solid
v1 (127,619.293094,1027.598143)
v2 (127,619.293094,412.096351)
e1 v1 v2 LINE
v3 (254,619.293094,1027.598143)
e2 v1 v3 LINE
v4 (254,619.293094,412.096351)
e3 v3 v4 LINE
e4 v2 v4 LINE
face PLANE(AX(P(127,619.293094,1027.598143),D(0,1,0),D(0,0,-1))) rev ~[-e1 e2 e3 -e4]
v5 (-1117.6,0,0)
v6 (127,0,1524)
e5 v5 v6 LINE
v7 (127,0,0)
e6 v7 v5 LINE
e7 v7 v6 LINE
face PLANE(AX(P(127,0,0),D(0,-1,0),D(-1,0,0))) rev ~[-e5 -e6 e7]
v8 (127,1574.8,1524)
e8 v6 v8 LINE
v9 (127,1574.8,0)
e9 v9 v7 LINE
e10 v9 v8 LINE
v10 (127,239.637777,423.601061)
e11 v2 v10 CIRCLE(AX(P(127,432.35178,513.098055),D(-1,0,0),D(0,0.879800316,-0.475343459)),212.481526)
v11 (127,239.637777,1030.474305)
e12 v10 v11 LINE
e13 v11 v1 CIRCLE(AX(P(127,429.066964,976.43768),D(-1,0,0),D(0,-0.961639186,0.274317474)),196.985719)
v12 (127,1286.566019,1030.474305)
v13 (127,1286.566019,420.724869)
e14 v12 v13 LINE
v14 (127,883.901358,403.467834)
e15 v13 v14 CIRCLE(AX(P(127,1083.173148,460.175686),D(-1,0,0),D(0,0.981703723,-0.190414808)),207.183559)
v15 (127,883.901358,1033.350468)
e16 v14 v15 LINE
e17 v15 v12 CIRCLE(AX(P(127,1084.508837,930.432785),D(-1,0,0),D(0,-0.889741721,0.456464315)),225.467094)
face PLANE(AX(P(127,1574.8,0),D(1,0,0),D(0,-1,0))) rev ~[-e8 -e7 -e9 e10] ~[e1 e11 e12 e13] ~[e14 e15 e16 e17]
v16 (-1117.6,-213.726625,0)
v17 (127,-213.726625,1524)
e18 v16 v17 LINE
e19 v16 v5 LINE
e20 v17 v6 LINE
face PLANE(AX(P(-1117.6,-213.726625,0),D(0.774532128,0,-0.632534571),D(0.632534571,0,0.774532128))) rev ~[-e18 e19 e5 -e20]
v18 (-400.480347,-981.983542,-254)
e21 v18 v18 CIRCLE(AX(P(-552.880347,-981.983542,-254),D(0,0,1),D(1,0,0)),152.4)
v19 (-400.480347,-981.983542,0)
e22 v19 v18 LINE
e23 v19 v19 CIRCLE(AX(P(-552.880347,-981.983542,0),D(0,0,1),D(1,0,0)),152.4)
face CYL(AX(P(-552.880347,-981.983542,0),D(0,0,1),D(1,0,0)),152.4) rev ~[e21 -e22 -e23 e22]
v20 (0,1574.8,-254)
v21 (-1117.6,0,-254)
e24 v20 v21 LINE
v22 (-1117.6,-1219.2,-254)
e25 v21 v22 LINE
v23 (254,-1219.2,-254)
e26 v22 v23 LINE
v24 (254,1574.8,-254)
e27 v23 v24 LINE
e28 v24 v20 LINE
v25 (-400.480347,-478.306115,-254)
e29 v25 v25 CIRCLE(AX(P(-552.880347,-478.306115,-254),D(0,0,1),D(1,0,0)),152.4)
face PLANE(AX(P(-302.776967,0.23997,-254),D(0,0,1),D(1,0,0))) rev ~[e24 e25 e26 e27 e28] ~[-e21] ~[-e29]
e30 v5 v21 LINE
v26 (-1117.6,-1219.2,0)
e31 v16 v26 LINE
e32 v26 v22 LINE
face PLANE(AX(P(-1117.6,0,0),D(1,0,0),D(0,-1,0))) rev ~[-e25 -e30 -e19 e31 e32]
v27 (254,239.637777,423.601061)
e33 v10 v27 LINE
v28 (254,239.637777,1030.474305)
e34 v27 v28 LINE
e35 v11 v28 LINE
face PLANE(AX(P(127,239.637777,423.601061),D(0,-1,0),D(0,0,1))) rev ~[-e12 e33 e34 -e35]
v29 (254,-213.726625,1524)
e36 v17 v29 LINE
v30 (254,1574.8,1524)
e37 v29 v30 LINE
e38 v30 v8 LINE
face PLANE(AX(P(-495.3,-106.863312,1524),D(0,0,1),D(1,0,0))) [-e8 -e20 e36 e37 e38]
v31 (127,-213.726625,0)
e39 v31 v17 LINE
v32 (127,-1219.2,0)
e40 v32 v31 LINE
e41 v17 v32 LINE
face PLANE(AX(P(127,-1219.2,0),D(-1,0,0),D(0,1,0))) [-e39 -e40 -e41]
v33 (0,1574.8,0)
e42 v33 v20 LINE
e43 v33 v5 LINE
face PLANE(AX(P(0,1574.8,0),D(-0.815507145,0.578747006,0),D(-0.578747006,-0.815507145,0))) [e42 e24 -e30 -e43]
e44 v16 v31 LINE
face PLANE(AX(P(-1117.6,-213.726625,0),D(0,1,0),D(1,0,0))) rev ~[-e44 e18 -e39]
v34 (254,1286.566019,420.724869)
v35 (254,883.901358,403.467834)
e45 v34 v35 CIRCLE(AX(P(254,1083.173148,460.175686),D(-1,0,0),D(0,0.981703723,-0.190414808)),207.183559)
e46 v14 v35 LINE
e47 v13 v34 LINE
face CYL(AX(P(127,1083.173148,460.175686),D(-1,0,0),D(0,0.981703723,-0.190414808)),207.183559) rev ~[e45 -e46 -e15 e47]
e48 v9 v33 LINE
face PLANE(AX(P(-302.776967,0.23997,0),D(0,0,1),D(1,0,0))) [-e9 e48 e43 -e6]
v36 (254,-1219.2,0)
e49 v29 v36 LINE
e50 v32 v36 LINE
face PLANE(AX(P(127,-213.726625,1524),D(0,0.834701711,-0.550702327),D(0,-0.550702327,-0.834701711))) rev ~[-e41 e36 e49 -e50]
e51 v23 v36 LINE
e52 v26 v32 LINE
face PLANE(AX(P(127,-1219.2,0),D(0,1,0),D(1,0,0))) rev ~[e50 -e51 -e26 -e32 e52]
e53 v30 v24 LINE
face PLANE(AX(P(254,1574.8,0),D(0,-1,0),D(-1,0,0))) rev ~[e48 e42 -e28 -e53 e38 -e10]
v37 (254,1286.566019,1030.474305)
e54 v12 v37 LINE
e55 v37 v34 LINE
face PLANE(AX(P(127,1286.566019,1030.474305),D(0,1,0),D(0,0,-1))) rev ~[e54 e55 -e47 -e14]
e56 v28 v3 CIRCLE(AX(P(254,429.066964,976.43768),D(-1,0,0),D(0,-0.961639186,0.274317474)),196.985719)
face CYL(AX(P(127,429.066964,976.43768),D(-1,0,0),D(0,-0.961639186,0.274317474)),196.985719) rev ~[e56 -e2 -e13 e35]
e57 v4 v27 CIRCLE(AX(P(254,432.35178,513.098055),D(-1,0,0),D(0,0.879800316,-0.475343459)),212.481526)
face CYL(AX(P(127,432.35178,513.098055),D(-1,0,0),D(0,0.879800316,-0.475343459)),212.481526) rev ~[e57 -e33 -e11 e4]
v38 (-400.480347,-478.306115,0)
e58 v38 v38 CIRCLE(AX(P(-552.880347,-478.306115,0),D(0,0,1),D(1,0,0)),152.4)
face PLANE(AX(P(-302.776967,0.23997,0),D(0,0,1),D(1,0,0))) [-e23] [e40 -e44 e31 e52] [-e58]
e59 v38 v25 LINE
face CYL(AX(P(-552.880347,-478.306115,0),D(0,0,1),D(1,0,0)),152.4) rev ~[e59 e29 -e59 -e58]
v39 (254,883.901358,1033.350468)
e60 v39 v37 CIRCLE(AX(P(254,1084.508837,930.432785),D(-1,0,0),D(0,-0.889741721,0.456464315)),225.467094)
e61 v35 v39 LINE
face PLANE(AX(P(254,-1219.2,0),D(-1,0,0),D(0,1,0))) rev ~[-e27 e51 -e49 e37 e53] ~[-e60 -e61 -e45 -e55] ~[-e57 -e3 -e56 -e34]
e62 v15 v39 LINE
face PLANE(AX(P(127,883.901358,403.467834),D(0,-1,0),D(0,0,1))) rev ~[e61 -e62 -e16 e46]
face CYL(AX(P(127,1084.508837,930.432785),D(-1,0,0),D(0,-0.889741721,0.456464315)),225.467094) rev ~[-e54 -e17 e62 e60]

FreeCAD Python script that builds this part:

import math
import FreeCAD as App
import Part
import Sketcher
Q = App.Units.Quantity

doc = App.newDocument("Part")
body = doc.addObject("PartDesign::Body", "Body")

# Sketch on XY plane
sketch1 = doc.addObject("Sketcher::SketchObject", "Sketch")
body.addObject(sketch1)
sketch1.AttachmentSupport = (doc.XY_Plane, [""])
sketch1.MapMode = "FlatFace"
sketch1.addGeometry([
    Part.LineSegment(App.Vector(254, -1219.2, 0), App.Vector(254, 1574.8, 0)),  # 0
    Part.LineSegment(App.Vector(254, 1574.8, 0), App.Vector(0, 1574.8, 0)),  # 1
    Part.LineSegment(App.Vector(0, 1574.8, 0), App.Vector(-1117.6, 0, 0)),  # 2
    Part.LineSegment(App.Vector(-1117.6, 0, 0), App.Vector(-1117.6, -1219.2, 0)),  # 3
    Part.LineSegment(App.Vector(-1117.6, -1219.2, 0), App.Vector(254, -1219.2, 0)),  # 4
    Part.Circle(App.Vector(-552.880347, -981.983542, 0), App.Vector(0, 0, 1), 152.4),  # 5
    Part.Circle(App.Vector(-552.880347, -478.306115, 0), App.Vector(0, 0, 1), 152.4),  # 6
], False)
sketch1.addConstraint([
    Sketcher.Constraint("Coincident", 0, 2, 1, 1),
    Sketcher.Constraint("Coincident", 1, 2, 2, 1),
    Sketcher.Constraint("Coincident", 2, 2, 3, 1),
    Sketcher.Constraint("Coincident", 3, 2, 4, 1),
    Sketcher.Constraint("Coincident", 4, 2, 0, 1),
    Sketcher.Constraint("Vertical", 0),
    Sketcher.Constraint("Horizontal", 1),
    Sketcher.Constraint("Vertical", 3),
    Sketcher.Constraint("Horizontal", 4),
    Sketcher.Constraint("Equal", 5, 6),
    Sketcher.Constraint("PointOnObject", 1, 2, -2),
    Sketcher.Constraint("PointOnObject", 2, 2, -1),
    Sketcher.Constraint("Vertical", 5, 3, 6, 3),
    Sketcher.Constraint("Diameter", 5, Q("12 in")),
    Sketcher.Constraint("DistanceX", 1, 2, 1, 1, Q("10 in")),
    Sketcher.Constraint("DistanceX", 4, 1, 4, 2, Q("54 in")),
    Sketcher.Constraint("DistanceY", 0, 1, 0, 2, Q("110 in")),
    Sketcher.Constraint("DistanceY", 3, 2, 3, 1, Q("48 in")),
    Sketcher.Constraint("DistanceX", 5, 3, -1, 1, Q("552.880347 mm")),
    Sketcher.Constraint("DistanceY", 5, 3, -1, 1, Q("981.983542 mm")),
    Sketcher.Constraint("DistanceY", 6, 3, -1, 1, Q("478.306115 mm")),
])
pad1 = doc.addObject("PartDesign::Pad", "Pad")
body.addObject(pad1)
pad1.Profile = sketch1
pad1.Length = Q("10 in")
pad1.Reversed = True

# Sketch on XY plane
sketch2 = doc.addObject("Sketcher::SketchObject", "Sketch001")
body.addObject(sketch2)
sketch2.AttachmentSupport = (doc.XY_Plane, [""])
sketch2.MapMode = "FlatFace"
sketch2.addGeometry([
    Part.LineSegment(App.Vector(127, 0, 0), App.Vector(-1117.6, 0, 0)),  # 0
    Part.LineSegment(App.Vector(-1117.6, 0, 0), App.Vector(-1117.6, -213.726625, 0)),  # 1
    Part.LineSegment(App.Vector(-1117.6, -213.726625, 0), App.Vector(127, -213.726625, 0)),  # 2
    Part.LineSegment(App.Vector(127, -213.726625, 0), App.Vector(127, -1219.2, 0)),  # 3
    Part.LineSegment(App.Vector(127, -1219.2, 0), App.Vector(254, -1219.2, 0)),  # 4
    Part.LineSegment(App.Vector(254, -1219.2, 0), App.Vector(254, 1574.8, 0)),  # 5
    Part.LineSegment(App.Vector(254, 1574.8, 0), App.Vector(127, 1574.8, 0)),  # 6
    Part.LineSegment(App.Vector(127, 1574.8, 0), App.Vector(127, 0, 0)),  # 7
], False)
sketch2.addConstraint([
    Sketcher.Constraint("Coincident", 0, 2, 1, 1),
    Sketcher.Constraint("Coincident", 1, 2, 2, 1),
    Sketcher.Constraint("Coincident", 2, 2, 3, 1),
    Sketcher.Constraint("Coincident", 3, 2, 4, 1),
    Sketcher.Constraint("Coincident", 4, 2, 5, 1),
    Sketcher.Constraint("Coincident", 5, 2, 6, 1),
    Sketcher.Constraint("Coincident", 6, 2, 7, 1),
    Sketcher.Constraint("Coincident", 7, 2, 0, 1),
    Sketcher.Constraint("Horizontal", 0),
    Sketcher.Constraint("Vertical", 1),
    Sketcher.Constraint("Horizontal", 2),
    Sketcher.Constraint("Vertical", 3),
    Sketcher.Constraint("Horizontal", 4),
    Sketcher.Constraint("Vertical", 5),
    Sketcher.Constraint("Horizontal", 6),
    Sketcher.Constraint("Vertical", 7),
    Sketcher.Constraint("PointOnObject", 0, 2, -1),
    Sketcher.Constraint("Vertical", 3, 2, 6, 2),
    Sketcher.Constraint("DistanceX", 0, 2, 0, 1, Q("49 in")),
    Sketcher.Constraint("DistanceX", 4, 1, 4, 2, Q("5 in")),
    Sketcher.Constraint("DistanceY", 5, 1, 5, 2, Q("110 in")),
    Sketcher.Constraint("DistanceY", 7, 2, 7, 1, Q("62 in")),
    Sketcher.Constraint("DistanceX", 0, 2, -1, 1, Q("44 in")),
    Sketcher.Constraint("DistanceY", 1, 2, 1, 1, Q("213.726625 mm")),
])
pad2 = doc.addObject("PartDesign::Pad", "Pad001")
body.addObject(pad2)
pad2.Profile = sketch2
pad2.Length = Q("60 in")

# Sketch on YZ plane
sketch3 = doc.addObject("Sketcher::SketchObject", "Sketch002")
body.addObject(sketch3)
sketch3.AttachmentSupport = (doc.YZ_Plane, [""])
sketch3.MapMode = "FlatFace"
sketch3.AttachmentOffset = App.Placement(App.Vector(0, 0, 5 * 25.4), App.Rotation())
sketch3.addGeometry([
    Part.LineSegment(App.Vector(-1219.2, 1524, 0), App.Vector(-213.726625, 1524, 0)),
    Part.LineSegment(App.Vector(-213.726625, 1524, 0), App.Vector(-1219.2, 0, 0)),
    Part.LineSegment(App.Vector(-1219.2, 0, 0), App.Vector(-1219.2, 1524, 0)),
], False)
sketch3.addConstraint([
    Sketcher.Constraint("Coincident", 0, 2, 1, 1),
    Sketcher.Constraint("Coincident", 1, 2, 2, 1),
    Sketcher.Constraint("Coincident", 2, 2, 0, 1),
    Sketcher.Constraint("Horizontal", 0),
    Sketcher.Constraint("Vertical", 2),
    Sketcher.Constraint("PointOnObject", 1, 2, -1),
    Sketcher.Constraint("DistanceY", 2, 1, 2, 2, Q("60 in")),
    Sketcher.Constraint("DistanceX", 1, 2, -1, 1, Q("48 in")),
    Sketcher.Constraint("DistanceX", 0, 1, 0, 2, Q("1005.473375 mm")),
])
pocket1 = doc.addObject("PartDesign::Pocket", "Pocket")
body.addObject(pocket1)
pocket1.Profile = sketch3
pocket1.Length = Q("10 in")
pocket1.Reversed = True

# Sketch on XZ plane
sketch4 = doc.addObject("Sketcher::SketchObject", "Sketch003")
body.addObject(sketch4)
sketch4.AttachmentSupport = (doc.XZ_Plane, [""])
sketch4.MapMode = "FlatFace"
sketch4.AttachmentOffset = App.Placement(App.Vector(0, 0, 213.726625), App.Rotation())
sketch4.addGeometry([
    Part.LineSegment(App.Vector(-1117.6, 0, 0), App.Vector(127, 1524, 0)),
    Part.LineSegment(App.Vector(127, 1524, 0), App.Vector(-1117.6, 1524, 0)),
    Part.LineSegment(App.Vector(-1117.6, 1524, 0), App.Vector(-1117.6, 0, 0)),
], False)
sketch4.addConstraint([
    Sketcher.Constraint("Coincident", 0, 2, 1, 1),
    Sketcher.Constraint("Coincident", 1, 2, 2, 1),
    Sketcher.Constraint("Coincident", 2, 2, 0, 1),
    Sketcher.Constraint("Horizontal", 1),
    Sketcher.Constraint("Vertical", 2),
    Sketcher.Constraint("PointOnObject", 2, 2, -1),
    Sketcher.Constraint("DistanceX", 1, 2, 1, 1, Q("49 in")),
    Sketcher.Constraint("DistanceY", 2, 2, 2, 1, Q("60 in")),
    Sketcher.Constraint("DistanceX", -1, 1, 0, 2, Q("5 in")),
])
pocket2 = doc.addObject("PartDesign::Pocket", "Pocket001")
body.addObject(pocket2)
pocket2.Profile = sketch4
pocket2.Length = Q("10 in")

# Sketch on YZ plane
sketch5 = doc.addObject("Sketcher::SketchObject", "Sketch004")
body.addObject(sketch5)
sketch5.AttachmentSupport = (doc.YZ_Plane, [""])
sketch5.MapMode = "FlatFace"
sketch5.AttachmentOffset = App.Placement(App.Vector(0, 0, 5 * 25.4), App.Rotation())
sketch5.addGeometry([
    Part.LineSegment(App.Vector(883.901358, 403.467834, 0), App.Vector(883.901358, 1033.350468, 0)),  # 0
    Part.ArcOfCircle(Part.Circle(App.Vector(1084.508837, 930.432785, 0), App.Vector(0, 0, 1), 225.467094), math.radians(26.340697), math.radians(152.84081)),  # 1
    Part.LineSegment(App.Vector(1286.566019, 1030.474305, 0), App.Vector(1286.566019, 420.724869, 0)),  # 2
    Part.ArcOfCircle(Part.Circle(App.Vector(1083.173148, 460.175686, 0), App.Vector(0, 0, 1), 207.183559), math.radians(-164.11495), math.radians(-10.976993)),  # 3
    Part.LineSegment(App.Vector(239.637777, 423.601061, 0), App.Vector(239.637777, 1030.474305, 0)),  # 4
    Part.ArcOfCircle(Part.Circle(App.Vector(429.066964, 976.43768, 0), App.Vector(0, 0, 1), 196.985719), math.radians(15.053247), math.radians(164.078656)),  # 5
    Part.LineSegment(App.Vector(619.293094, 1027.598143, 0), App.Vector(619.293094, 412.096351, 0)),  # 6
    Part.ArcOfCircle(Part.Circle(App.Vector(432.35178, 513.098055, 0), App.Vector(0, 0, 1), 212.481526), math.radians(-155.089695), math.radians(-28.381715)),  # 7
], False)
sketch5.addConstraint([
    Sketcher.Constraint("Coincident", 0, 2, 1, 2),
    Sketcher.Constraint("Coincident", 1, 1, 2, 1),
    Sketcher.Constraint("Coincident", 2, 2, 3, 2),
    Sketcher.Constraint("Coincident", 3, 1, 0, 1),
    Sketcher.Constraint("Coincident", 4, 2, 5, 2),
    Sketcher.Constraint("Coincident", 5, 1, 6, 1),
    Sketcher.Constraint("Coincident", 6, 2, 7, 2),
    Sketcher.Constraint("Coincident", 7, 1, 4, 1),
    Sketcher.Constraint("Vertical", 0),
    Sketcher.Constraint("Vertical", 2),
    Sketcher.Constraint("Vertical", 4),
    Sketcher.Constraint("Vertical", 6),
    Sketcher.Constraint("Horizontal", 1, 1, 4, 2),
    Sketcher.Constraint("Radius", 3, Q("207.183559 mm")),
    Sketcher.Constraint("Radius", 5, Q("196.985719 mm")),
    Sketcher.Constraint("DistanceX", -1, 1, 5, 3, Q("16.8924001 in")),
    Sketcher.Constraint("Radius", 1, Q("225.467094 mm")),
    Sketcher.Constraint("Radius", 7, Q("212.481526 mm")),
    Sketcher.Constraint("DistanceY", 6, 2, 6, 1, Q("615.501791 mm")),
    Sketcher.Constraint("DistanceY", 3, 3, 1, 3, Q("470.257099 mm")),
    Sketcher.Constraint("DistanceY", 2, 2, 0, 2, Q("612.625599 mm")),
    Sketcher.Constraint("DistanceY", 0, 1, 0, 2, Q("629.882634 mm")),
    Sketcher.Constraint("DistanceY", 2, 2, 2, 1, Q("609.749436 mm")),
    Sketcher.Constraint("DistanceY", 4, 1, 4, 2, Q("606.873244 mm")),
    Sketcher.Constraint("DistanceX", -1, 1, 3, 3, Q("1083.173148 mm")),
    Sketcher.Constraint("DistanceY", -1, 1, 5, 3, Q("976.43768 mm")),
    Sketcher.Constraint("DistanceX", -1, 1, 7, 3, Q("432.35178 mm")),
    Sketcher.Constraint("DistanceY", -1, 1, 2, 2, Q("420.724869 mm")),
])
pocket3 = doc.addObject("PartDesign::Pocket", "Pocket002")
body.addObject(pocket3)
pocket3.Profile = sketch5
pocket3.Length = Q("10 in")
pocket3.Reversed = True

doc.recompute()
